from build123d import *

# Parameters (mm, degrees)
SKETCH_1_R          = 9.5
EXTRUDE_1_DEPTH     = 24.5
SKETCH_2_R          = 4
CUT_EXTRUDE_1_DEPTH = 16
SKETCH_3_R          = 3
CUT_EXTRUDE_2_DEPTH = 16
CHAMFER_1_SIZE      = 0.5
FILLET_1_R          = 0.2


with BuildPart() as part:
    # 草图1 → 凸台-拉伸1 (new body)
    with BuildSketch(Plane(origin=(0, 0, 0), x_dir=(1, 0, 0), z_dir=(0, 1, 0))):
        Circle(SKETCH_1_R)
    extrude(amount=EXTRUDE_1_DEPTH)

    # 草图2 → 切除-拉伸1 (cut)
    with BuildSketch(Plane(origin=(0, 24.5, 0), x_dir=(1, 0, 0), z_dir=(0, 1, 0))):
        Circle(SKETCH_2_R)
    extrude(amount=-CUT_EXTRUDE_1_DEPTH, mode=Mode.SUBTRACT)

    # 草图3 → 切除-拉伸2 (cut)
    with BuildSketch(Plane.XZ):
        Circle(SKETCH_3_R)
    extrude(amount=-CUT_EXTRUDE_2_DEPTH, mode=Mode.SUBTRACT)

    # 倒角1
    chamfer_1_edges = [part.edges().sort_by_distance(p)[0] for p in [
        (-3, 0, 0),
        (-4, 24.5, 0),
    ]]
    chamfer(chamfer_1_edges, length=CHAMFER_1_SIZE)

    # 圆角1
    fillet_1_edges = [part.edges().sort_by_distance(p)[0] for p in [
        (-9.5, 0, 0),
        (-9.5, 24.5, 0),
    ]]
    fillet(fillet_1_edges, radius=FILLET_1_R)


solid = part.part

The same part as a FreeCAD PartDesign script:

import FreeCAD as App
import Part
import Sketcher
from FreeCAD import Vector
Q = App.Units.Quantity


def edges_at(feature, points):
    """Names of the edges that pass closest to the given points."""
    edges = feature.Shape.Edges
    near = lambda p: min(range(len(edges)), key=lambda i: edges[i].distToShape(Part.Vertex(*p))[0])
    return sorted({f"Edge{near(p) + 1}" for p in points})

doc = App.newDocument("Part")
body = doc.addObject("PartDesign::Body", "Body")

# Sketch on XZ plane
sketch1 = doc.addObject("Sketcher::SketchObject", "Sketch")
body.addObject(sketch1)
sketch1.AttachmentSupport = (doc.XZ_Plane, [""])
sketch1.MapMode = "FlatFace"
sketch1.addGeometry(Part.Circle(Vector(0, 0, 0), Vector(0, 0, 1), 10), False)
sketch1.addConstraint([
    Sketcher.Constraint("Coincident", 0, 3, -1, 1),
    Sketcher.Constraint("Diameter", 0, Q("19 mm")),
])
pad1 = doc.addObject("PartDesign::Pad", "Pad")
body.addObject(pad1)
pad1.Profile = sketch1
pad1.Length = 24.5
pad1.Reversed = True

# Sketch on XZ plane
sketch2 = doc.addObject("Sketcher::SketchObject", "Sketch001")
body.addObject(sketch2)
sketch2.AttachmentSupport = (doc.XZ_Plane, [""])
sketch2.MapMode = "FlatFace"
sketch2.AttachmentOffset = App.Placement(Vector(0, 0, -24.5), App.Rotation())
sketch2.addGeometry(Part.Circle(Vector(0, 0, 0), Vector(0, 0, 1), 4), False)
sketch2.addConstraint([
    Sketcher.Constraint("Coincident", 0, 3, -1, 1),
    Sketcher.Constraint("Diameter", 0, Q("8 mm")),
])
pocket1 = doc.addObject("PartDesign::Pocket", "Pocket")
body.addObject(pocket1)
pocket1.Profile = sketch2
pocket1.Length = 16
pocket1.Reversed = True

# Sketch on XZ plane
sketch3 = doc.addObject("Sketcher::SketchObject", "Sketch002")
body.addObject(sketch3)
sketch3.AttachmentSupport = (doc.XZ_Plane, [""])
sketch3.MapMode = "FlatFace"
sketch3.addGeometry(Part.Circle(Vector(0, 0, 0), Vector(0, 0, 1), 3), False)
sketch3.addConstraint([
    Sketcher.Constraint("Coincident", 0, 3, -1, 1),
    Sketcher.Constraint("Diameter", 0, Q("6 mm")),
])
pocket2 = doc.addObject("PartDesign::Pocket", "Pocket001")
body.addObject(pocket2)
pocket2.Profile = sketch3
pocket2.Length = 16
doc.recompute()

chamfer = doc.addObject("PartDesign::Chamfer", "Chamfer")
body.addObject(chamfer)
chamfer.Base = (pocket2, edges_at(pocket2, [(-3, 0, 0), (-4, 24.5, 0)]))
chamfer.Size = 0.5
doc.recompute()

fillet = doc.addObject("PartDesign::Fillet", "Fillet")
body.addObject(fillet)
fillet.Base = (chamfer, edges_at(chamfer, [(-9.5, 0, 0), (-9.5, 24.5, 0)]))
fillet.Radius = 0.2

doc.recompute()
